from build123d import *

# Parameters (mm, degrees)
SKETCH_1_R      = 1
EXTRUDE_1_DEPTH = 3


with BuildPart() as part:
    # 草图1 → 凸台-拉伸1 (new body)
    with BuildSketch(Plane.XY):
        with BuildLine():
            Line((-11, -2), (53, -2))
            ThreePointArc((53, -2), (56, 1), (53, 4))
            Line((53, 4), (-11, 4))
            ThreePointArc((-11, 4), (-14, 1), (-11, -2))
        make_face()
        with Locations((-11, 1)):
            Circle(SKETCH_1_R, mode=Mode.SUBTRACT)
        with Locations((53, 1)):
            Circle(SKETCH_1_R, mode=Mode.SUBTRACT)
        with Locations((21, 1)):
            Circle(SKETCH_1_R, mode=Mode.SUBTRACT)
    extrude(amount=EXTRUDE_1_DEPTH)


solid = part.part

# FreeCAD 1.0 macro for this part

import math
import FreeCAD as App
import Part
import Sketcher

V = App.Vector

doc = App.newDocument("Part")
body = doc.addObject("PartDesign::Body", "Body")

# Sketch on XY plane
sketch1 = body.newObject("Sketcher::SketchObject", "Sketch")
sketch1.AttachmentSupport = (doc.getObject("XY_Plane"), [""])
sketch1.MapMode = "FlatFace"
sketch1.addGeometry(Part.LineSegment(V(-11, -2, 0), V(53, -2, 0)), False)
sketch1.addGeometry(Part.ArcOfCircle(Part.Circle(V(53, 1, 0), V(0, 0, 1), 3), math.radians(-90), math.radians(90)), False)
sketch1.addGeometry(Part.LineSegment(V(53, 4, 0), V(-11, 4, 0)), False)
sketch1.addGeometry(Part.ArcOfCircle(Part.Circle(V(-11, 1, 0), V(0, 0, 1), 3), math.radians(90), math.radians(270)), False)
sketch1.addGeometry(Part.Circle(V(-11, 1, 0), V(0, 0, 1), 1), False)
sketch1.addGeometry(Part.Circle(V(21, 1, 0), V(0, 0, 1), 1), False)
sketch1.addGeometry(Part.Circle(V(53, 1, 0), V(0, 0, 1), 1), False)
sketch1.addConstraint(Sketcher.Constraint("Tangent", 0, 2, 1, 1))
sketch1.addConstraint(Sketcher.Constraint("Tangent", 1, 2, 2, 1))
sketch1.addConstraint(Sketcher.Constraint("Tangent", 2, 2, 3, 1))
sketch1.addConstraint(Sketcher.Constraint("Tangent", 3, 2, 0, 1))
sketch1.addConstraint(Sketcher.Constraint("Horizontal", 0))
sketch1.addConstraint(Sketcher.Constraint("Horizontal", 2))
sketch1.addConstraint(Sketcher.Constraint("Coincident", 4, 3, 3, 3))
sketch1.addConstraint(Sketcher.Constraint("Coincident", 6, 3, 1, 3))
sketch1.addConstraint(Sketcher.Constraint("Equal", 4, 5))
sketch1.addConstraint(Sketcher.Constraint("Equal", 5, 6))
sketch1.addConstraint(Sketcher.Constraint("Horizontal", 4, 3, 5, 3))
sketch1.addConstraint(Sketcher.Constraint("Diameter", 4, 2.0))
sketch1.addConstraint(Sketcher.Constraint("Radius", 1, 3.0))
sketch1.addConstraint(Sketcher.Constraint("DistanceX", 0, 1, 0, 2, 64.0))
sketch1.addConstraint(Sketcher.Constraint("DistanceX", -1, 1, 1, 3, 53.0))
sketch1.addConstraint(Sketcher.Constraint("DistanceY", -1, 1, 1, 3, 1.0))
sketch1.addConstraint(Sketcher.Constraint("DistanceX", -1, 1, 5, 3, 21.0))
pad1 = body.newObject("PartDesign::Pad", "Pad")
pad1.Profile = sketch1
pad1.Length = 3

doc.recompute()
